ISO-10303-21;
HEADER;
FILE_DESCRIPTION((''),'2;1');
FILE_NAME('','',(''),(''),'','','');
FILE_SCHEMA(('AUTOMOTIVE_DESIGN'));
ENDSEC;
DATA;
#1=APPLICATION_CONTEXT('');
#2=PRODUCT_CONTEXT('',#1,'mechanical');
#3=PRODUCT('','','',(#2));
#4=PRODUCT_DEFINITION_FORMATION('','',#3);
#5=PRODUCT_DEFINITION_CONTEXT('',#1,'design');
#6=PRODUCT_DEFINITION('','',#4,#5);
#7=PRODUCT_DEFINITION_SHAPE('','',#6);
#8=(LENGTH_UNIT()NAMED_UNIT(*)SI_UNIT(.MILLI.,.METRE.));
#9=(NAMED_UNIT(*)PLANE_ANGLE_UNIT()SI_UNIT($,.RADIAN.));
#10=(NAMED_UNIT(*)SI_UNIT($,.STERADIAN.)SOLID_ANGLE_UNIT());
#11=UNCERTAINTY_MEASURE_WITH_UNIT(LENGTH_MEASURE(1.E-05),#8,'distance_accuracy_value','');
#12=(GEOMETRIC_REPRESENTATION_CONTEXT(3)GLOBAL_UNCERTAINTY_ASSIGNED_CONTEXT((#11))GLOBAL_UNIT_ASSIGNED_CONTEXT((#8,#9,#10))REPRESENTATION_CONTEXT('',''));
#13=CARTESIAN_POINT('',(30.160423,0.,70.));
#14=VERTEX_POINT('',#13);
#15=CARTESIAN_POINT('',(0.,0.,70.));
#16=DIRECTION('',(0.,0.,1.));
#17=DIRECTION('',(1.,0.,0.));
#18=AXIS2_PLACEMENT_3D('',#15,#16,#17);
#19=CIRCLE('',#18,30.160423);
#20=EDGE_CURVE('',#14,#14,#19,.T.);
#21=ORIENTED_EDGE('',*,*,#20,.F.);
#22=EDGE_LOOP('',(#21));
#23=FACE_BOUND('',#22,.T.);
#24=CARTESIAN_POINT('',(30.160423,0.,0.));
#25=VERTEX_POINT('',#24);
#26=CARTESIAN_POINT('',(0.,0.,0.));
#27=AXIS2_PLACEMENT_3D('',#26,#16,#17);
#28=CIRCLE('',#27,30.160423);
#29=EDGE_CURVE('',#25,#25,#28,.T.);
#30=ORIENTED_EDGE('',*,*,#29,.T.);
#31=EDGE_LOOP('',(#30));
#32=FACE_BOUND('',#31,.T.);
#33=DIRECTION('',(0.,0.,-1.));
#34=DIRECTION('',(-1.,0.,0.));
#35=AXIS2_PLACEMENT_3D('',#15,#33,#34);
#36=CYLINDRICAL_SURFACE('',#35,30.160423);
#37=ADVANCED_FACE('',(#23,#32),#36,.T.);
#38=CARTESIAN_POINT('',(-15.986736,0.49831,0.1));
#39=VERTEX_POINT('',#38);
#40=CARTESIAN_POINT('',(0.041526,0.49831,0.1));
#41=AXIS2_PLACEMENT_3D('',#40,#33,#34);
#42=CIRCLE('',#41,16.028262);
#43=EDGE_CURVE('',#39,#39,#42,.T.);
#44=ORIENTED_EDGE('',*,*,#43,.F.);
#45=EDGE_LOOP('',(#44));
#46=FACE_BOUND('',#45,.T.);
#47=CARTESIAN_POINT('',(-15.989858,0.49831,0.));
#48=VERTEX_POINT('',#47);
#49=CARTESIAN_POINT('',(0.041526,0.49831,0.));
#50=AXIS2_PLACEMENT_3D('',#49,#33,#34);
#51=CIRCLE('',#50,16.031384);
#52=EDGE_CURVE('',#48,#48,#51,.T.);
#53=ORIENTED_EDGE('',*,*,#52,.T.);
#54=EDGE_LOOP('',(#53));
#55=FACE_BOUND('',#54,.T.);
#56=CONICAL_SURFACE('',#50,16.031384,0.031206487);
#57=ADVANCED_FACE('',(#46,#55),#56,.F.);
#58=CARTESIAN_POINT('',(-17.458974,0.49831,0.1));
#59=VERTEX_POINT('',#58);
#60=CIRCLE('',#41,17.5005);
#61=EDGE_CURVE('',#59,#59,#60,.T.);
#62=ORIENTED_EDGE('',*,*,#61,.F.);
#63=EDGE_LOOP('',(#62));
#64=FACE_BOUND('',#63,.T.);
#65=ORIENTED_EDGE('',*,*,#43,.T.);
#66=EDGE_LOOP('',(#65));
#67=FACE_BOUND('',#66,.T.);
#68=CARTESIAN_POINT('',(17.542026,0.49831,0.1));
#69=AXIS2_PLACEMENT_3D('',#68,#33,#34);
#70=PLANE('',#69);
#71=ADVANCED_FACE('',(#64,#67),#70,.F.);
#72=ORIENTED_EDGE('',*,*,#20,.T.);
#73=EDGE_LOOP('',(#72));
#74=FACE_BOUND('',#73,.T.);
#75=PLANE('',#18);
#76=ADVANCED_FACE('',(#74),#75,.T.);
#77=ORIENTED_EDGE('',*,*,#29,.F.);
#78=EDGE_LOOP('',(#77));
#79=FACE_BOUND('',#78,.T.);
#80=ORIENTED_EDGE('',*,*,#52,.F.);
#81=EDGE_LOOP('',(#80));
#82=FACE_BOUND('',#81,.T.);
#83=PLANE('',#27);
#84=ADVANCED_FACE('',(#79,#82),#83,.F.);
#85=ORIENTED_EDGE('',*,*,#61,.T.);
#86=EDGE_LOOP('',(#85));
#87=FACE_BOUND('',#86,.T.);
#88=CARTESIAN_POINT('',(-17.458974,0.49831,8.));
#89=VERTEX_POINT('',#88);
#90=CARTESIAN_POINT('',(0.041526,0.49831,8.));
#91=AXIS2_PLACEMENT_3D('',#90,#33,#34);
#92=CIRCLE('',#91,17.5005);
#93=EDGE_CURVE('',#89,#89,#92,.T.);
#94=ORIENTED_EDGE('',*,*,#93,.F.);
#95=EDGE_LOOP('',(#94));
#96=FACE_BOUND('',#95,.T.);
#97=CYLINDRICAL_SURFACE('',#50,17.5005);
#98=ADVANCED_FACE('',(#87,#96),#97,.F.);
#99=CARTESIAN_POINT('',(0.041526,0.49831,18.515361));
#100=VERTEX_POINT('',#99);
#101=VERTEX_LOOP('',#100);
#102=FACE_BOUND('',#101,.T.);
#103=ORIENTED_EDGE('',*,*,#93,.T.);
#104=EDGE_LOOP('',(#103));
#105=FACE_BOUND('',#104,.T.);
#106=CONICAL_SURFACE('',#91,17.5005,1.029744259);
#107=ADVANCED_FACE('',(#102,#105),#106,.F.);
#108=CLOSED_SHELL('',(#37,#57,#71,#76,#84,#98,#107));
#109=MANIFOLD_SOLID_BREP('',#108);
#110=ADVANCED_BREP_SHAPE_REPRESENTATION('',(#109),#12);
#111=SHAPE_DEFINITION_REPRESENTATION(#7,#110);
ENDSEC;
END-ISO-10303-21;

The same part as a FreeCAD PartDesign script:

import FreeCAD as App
import Part
import Sketcher

V = App.Vector
Q = App.Units.Quantity

doc = App.newDocument("Part")
body = doc.addObject("PartDesign::Body", "Body")

# Sketch on XY plane
sketch1 = body.newObject("Sketcher::SketchObject", "Sketch")
sketch1.AttachmentSupport = (doc.getObject("XY_Plane"), [""])
sketch1.MapMode = "FlatFace"
sketch1.addGeometry(Part.Circle(V(0, 0, 0), V(0, 0, 1), 30), False)
sketch1.addConstraint([
    Sketcher.Constraint("Coincident", 0, 3, -1, 1),
    Sketcher.Constraint("Diameter", 0, 60.320846),
])
pad1 = body.newObject("PartDesign::Pad", "Pad")
pad1.Profile = sketch1
pad1.Length = 70

# Sketch on YZ plane
sketch2 = body.newObject("Sketcher::SketchObject", "Sketch001")
sketch2.AttachmentSupport = (doc.getObject("YZ_Plane"), [""])
sketch2.MapMode = "FlatFace"
sketch2.AttachmentOffset = App.Placement(V(0, 0, 0.041526), App.Rotation())
sketch2.addGeometry([
    Part.LineSegment(V(0.49831, 18.515361, 0), V(0.49831, 0, 0)),  # 0
    Part.LineSegment(V(0.49831, 0, 0), V(16.529694, 0, 0)),  # 1
    Part.LineSegment(V(16.529694, 0, 0), V(16.526573, 0.1, 0)),  # 2
    Part.LineSegment(V(16.526573, 0.1, 0), V(17.99881, 0.1, 0)),  # 3
    Part.LineSegment(V(17.99881, 0.1, 0), V(17.99881, 8, 0)),  # 4
    Part.LineSegment(V(17.99881, 8, 0), V(0.49831, 18.515361, 0)),  # 5
], False)
sketch2.addGeometry(Part.LineSegment(V(0.49831, 0, 0), V(0.49831, 18.515361, 0)), True)  # axis
sketch2.addConstraint([
    Sketcher.Constraint("Coincident", 0, 2, 1, 1),
    Sketcher.Constraint("Coincident", 1, 2, 2, 1),
    Sketcher.Constraint("Coincident", 2, 2, 3, 1),
    Sketcher.Constraint("Coincident", 3, 2, 4, 1),
    Sketcher.Constraint("Coincident", 4, 2, 5, 1),
    Sketcher.Constraint("Coincident", 5, 2, 0, 1),
    Sketcher.Constraint("Vertical", 0),
    Sketcher.Constraint("Horizontal", 1),
    Sketcher.Constraint("Horizontal", 3),
    Sketcher.Constraint("Vertical", 4),
    Sketcher.Constraint("Vertical", 6),
    Sketcher.Constraint("Coincident", 6, 1, 0, 2),
    Sketcher.Constraint("PointOnObject", 0, 2, -1),
    Sketcher.Constraint("Equal", 0, 6),
    Sketcher.Constraint("Angle", 5, Q("149 deg")),
    Sketcher.Constraint("DistanceY", 4, 1, 4, 2, 7.9),
    Sketcher.Constraint("DistanceY", -1, 1, 4, 2, 8.0),
    Sketcher.Constraint("DistanceY", 0, 2, 0, 1, 18.515361),
    Sketcher.Constraint("Distance", 2, 0.100049),
    Sketcher.Constraint("DistanceX", 1, 1, 1, 2, 16.031384),
    Sketcher.Constraint("DistanceX", -1, 1, 0, 2, 0.49831),
])
groove = body.newObject("PartDesign::Groove", "Groove")
groove.Profile = sketch2
groove.ReferenceAxis = (sketch2, ["Axis0"])
groove.Angle = 360

doc.recompute()
